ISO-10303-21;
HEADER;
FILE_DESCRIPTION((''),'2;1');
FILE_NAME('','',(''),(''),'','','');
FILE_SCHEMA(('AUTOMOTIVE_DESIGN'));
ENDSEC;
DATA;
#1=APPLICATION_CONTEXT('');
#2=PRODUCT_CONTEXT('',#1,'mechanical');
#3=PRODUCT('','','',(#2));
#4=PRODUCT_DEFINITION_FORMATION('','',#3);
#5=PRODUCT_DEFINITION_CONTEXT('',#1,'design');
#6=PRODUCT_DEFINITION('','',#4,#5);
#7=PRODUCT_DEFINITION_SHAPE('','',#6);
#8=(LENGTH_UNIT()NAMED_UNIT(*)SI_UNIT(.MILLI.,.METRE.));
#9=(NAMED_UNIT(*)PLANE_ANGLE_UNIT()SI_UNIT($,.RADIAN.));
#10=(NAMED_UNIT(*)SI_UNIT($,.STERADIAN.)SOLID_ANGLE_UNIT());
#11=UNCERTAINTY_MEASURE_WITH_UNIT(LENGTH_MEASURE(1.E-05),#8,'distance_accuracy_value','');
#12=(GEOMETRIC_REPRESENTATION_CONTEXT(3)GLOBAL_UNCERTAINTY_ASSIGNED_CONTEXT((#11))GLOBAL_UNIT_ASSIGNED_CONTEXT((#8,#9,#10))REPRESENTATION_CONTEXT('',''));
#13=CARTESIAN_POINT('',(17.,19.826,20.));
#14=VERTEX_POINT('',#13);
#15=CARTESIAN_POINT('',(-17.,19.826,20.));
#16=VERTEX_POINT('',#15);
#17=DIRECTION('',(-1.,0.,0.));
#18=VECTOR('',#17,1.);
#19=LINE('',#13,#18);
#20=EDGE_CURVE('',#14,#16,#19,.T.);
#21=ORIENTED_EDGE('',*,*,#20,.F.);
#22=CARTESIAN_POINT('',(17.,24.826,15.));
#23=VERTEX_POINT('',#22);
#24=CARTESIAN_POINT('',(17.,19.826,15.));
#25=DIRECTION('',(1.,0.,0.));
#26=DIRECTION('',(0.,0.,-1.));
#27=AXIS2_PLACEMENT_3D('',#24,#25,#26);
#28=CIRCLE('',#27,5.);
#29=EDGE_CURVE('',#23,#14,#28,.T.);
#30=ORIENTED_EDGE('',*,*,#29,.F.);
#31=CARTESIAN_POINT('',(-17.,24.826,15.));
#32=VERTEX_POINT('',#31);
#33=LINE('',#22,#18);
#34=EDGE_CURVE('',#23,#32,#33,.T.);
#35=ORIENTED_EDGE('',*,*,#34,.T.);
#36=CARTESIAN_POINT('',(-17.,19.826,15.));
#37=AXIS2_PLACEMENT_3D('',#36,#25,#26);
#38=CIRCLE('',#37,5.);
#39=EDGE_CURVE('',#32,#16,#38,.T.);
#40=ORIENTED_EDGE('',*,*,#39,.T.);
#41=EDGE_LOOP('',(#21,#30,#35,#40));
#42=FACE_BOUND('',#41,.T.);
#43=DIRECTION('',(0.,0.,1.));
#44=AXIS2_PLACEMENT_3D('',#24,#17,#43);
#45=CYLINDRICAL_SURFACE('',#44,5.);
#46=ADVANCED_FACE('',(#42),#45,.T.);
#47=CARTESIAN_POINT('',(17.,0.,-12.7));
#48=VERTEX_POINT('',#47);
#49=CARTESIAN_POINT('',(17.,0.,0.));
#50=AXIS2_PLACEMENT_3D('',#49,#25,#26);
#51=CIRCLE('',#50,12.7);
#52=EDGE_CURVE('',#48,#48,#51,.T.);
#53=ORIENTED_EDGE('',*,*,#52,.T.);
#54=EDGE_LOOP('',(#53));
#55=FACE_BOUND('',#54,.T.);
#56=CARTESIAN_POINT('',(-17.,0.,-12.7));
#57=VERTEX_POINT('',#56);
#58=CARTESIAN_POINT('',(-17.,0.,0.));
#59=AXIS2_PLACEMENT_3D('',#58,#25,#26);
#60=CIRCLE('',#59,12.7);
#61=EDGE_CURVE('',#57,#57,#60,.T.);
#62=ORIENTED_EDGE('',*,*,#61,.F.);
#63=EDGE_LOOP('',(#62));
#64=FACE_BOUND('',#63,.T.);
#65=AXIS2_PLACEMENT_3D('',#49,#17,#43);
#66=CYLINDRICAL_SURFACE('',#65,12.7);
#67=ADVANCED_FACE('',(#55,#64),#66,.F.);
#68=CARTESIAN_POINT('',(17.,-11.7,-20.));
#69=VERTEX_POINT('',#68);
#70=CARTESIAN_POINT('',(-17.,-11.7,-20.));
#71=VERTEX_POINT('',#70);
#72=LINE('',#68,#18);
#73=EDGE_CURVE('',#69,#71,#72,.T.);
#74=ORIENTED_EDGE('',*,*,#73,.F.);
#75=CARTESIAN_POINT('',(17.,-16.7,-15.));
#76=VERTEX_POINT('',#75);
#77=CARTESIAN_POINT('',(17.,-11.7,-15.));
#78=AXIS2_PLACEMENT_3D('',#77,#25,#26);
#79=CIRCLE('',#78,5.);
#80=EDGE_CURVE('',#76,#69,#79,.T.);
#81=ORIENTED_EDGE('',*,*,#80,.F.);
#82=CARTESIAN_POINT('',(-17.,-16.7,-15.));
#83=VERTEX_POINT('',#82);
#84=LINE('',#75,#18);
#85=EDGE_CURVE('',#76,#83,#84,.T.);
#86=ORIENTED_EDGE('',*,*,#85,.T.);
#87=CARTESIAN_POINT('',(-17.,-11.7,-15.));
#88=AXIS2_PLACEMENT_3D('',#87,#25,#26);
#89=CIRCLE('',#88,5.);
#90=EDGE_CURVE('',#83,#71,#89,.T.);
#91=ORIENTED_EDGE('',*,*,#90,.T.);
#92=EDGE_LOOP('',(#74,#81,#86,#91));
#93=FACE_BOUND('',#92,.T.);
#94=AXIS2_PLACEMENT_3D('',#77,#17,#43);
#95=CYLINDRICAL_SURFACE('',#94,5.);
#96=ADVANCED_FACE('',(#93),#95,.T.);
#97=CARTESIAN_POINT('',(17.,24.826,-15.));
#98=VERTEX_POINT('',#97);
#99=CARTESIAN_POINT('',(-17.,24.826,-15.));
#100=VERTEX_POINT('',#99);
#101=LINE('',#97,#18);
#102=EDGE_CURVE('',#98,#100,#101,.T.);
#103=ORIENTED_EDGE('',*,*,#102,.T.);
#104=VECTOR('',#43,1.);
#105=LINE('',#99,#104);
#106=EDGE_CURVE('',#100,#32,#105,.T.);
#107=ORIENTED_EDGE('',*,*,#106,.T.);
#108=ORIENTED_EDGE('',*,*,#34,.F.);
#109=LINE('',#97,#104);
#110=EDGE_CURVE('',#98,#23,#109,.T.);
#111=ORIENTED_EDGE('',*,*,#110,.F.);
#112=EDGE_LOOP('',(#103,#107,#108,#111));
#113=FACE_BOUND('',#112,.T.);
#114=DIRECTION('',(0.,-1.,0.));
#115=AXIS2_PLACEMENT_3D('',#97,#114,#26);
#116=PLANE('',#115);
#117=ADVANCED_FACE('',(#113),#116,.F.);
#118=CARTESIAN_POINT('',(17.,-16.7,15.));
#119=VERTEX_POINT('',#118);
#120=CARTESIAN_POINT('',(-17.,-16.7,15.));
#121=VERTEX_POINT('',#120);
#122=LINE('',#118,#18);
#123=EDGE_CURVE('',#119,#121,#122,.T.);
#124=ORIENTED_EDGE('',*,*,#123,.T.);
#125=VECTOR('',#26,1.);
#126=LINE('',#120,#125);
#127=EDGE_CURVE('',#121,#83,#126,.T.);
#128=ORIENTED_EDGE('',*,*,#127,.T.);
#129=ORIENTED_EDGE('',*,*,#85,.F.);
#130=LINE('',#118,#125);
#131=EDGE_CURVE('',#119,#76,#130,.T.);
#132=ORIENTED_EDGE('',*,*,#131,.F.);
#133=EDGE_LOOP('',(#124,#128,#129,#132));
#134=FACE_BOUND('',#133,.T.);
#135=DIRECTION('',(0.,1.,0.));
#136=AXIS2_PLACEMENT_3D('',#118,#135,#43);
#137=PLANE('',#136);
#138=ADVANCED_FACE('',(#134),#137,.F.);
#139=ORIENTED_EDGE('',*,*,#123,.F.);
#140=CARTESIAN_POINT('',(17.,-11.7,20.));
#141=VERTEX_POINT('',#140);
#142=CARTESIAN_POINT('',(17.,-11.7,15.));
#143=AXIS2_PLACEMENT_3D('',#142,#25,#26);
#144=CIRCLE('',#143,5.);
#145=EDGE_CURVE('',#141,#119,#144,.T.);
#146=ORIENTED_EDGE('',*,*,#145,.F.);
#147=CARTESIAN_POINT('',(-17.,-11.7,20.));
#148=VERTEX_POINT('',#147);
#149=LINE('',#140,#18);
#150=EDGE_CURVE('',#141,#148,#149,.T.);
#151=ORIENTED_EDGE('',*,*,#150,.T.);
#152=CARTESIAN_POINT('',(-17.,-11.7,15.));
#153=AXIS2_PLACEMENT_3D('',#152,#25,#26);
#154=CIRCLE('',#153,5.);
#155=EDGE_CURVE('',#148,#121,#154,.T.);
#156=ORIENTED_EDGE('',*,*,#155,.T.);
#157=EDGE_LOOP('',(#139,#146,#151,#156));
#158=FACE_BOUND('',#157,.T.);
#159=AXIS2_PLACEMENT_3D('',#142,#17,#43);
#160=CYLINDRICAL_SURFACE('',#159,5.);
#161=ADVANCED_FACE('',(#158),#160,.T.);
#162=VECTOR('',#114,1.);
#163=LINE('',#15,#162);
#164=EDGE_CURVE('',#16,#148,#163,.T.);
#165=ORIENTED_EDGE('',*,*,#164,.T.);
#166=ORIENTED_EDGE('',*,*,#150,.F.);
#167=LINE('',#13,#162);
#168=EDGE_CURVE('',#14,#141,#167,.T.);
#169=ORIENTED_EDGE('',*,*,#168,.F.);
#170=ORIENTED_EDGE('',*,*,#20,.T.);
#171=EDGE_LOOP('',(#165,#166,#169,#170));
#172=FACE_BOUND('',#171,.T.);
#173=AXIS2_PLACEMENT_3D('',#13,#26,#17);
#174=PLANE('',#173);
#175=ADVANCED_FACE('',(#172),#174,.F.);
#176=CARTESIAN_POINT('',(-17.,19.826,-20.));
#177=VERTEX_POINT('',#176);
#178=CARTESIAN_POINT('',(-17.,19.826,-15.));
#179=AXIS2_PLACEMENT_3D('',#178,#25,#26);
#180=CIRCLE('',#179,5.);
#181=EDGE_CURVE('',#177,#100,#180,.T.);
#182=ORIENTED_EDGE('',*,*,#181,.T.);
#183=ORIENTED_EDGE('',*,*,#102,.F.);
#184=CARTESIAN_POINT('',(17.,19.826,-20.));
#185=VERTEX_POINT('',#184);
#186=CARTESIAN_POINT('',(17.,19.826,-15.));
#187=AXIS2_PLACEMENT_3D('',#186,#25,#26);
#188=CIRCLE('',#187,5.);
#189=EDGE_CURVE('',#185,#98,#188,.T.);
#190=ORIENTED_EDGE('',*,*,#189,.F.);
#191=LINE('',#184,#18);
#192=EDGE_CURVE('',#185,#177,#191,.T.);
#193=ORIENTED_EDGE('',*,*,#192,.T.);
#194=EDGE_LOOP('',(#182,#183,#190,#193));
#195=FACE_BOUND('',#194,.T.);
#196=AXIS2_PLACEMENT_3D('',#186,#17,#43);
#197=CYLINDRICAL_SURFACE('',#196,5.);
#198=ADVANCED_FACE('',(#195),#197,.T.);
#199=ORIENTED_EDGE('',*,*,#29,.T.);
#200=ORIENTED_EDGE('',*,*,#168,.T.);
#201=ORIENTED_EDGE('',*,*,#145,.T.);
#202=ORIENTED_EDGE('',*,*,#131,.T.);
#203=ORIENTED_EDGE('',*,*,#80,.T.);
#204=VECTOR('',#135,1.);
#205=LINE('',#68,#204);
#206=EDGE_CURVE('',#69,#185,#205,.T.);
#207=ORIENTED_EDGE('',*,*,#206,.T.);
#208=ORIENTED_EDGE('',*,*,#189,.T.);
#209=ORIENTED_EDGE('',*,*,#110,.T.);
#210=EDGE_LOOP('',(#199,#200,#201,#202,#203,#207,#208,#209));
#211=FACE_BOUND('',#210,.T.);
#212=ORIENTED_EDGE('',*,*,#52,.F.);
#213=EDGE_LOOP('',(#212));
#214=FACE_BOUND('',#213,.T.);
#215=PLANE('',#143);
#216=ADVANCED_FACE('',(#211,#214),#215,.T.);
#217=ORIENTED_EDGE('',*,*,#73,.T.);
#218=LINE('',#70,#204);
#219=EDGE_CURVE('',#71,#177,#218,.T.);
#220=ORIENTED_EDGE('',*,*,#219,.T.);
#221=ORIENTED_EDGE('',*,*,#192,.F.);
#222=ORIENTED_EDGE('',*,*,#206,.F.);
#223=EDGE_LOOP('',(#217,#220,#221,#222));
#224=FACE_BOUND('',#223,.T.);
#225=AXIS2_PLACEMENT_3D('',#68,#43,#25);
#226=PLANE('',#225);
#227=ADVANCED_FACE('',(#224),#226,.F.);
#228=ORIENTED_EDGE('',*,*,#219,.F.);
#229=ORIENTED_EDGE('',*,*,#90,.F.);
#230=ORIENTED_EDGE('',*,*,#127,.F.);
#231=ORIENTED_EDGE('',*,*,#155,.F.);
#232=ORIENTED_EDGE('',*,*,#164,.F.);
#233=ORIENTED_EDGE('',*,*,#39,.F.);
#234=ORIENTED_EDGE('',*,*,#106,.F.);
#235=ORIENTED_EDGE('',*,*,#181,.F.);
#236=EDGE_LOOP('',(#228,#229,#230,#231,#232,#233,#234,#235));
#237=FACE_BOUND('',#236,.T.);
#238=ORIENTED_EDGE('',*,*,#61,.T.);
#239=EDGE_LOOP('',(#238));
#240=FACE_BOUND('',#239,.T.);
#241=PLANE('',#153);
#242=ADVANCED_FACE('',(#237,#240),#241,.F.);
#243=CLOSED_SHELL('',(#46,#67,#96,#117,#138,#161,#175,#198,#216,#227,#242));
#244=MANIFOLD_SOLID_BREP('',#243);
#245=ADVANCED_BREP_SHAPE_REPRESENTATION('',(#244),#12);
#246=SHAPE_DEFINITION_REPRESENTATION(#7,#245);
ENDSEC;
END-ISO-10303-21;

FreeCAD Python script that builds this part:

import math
import FreeCAD as App
import Part
import Sketcher
Q = App.Units.Quantity

doc = App.newDocument("Part")
body = doc.addObject("PartDesign::Body", "Body")

# Sketch on YZ plane
sketch1 = body.newObject("Sketcher::SketchObject", "Sketch")
sketch1.AttachmentSupport = (doc.getObject("YZ_Plane"), [""])
sketch1.MapMode = "FlatFace"
sketch1.addGeometry(Part.LineSegment(App.Vector(-16.7, 15, 0), App.Vector(-16.7, -15, 0)), False)
sketch1.addGeometry(Part.ArcOfCircle(Part.Circle(App.Vector(-11.7, -15, 0), App.Vector(0, 0, 1), 5), math.radians(180), math.radians(270)), False)
sketch1.addGeometry(Part.LineSegment(App.Vector(-11.7, -20, 0), App.Vector(19.826, -20, 0)), False)
sketch1.addGeometry(Part.ArcOfCircle(Part.Circle(App.Vector(19.826, -15, 0), App.Vector(0, 0, 1), 5), math.radians(-90), math.radians(0)), False)
sketch1.addGeometry(Part.LineSegment(App.Vector(24.826, -15, 0), App.Vector(24.826, 15, 0)), False)
sketch1.addGeometry(Part.ArcOfCircle(Part.Circle(App.Vector(19.826, 15, 0), App.Vector(0, 0, 1), 5), math.radians(0), math.radians(90)), False)
sketch1.addGeometry(Part.LineSegment(App.Vector(19.826, 20, 0), App.Vector(-11.7, 20, 0)), False)
sketch1.addGeometry(Part.ArcOfCircle(Part.Circle(App.Vector(-11.7, 15, 0), App.Vector(0, 0, 1), 5), math.radians(90), math.radians(180)), False)
sketch1.addGeometry(Part.Circle(App.Vector(0, 0, 0), App.Vector(0, 0, 1), 12.7), False)
sketch1.addConstraint(Sketcher.Constraint("Tangent", 0, 2, 1, 1))
sketch1.addConstraint(Sketcher.Constraint("Tangent", 1, 2, 2, 1))
sketch1.addConstraint(Sketcher.Constraint("Tangent", 2, 2, 3, 1))
sketch1.addConstraint(Sketcher.Constraint("Tangent", 3, 2, 4, 1))
sketch1.addConstraint(Sketcher.Constraint("Tangent", 4, 2, 5, 1))
sketch1.addConstraint(Sketcher.Constraint("Tangent", 5, 2, 6, 1))
sketch1.addConstraint(Sketcher.Constraint("Tangent", 6, 2, 7, 1))
sketch1.addConstraint(Sketcher.Constraint("Tangent", 7, 2, 0, 1))
sketch1.addConstraint(Sketcher.Constraint("Vertical", 0))
sketch1.addConstraint(Sketcher.Constraint("Horizontal", 2))
sketch1.addConstraint(Sketcher.Constraint("Vertical", 4))
sketch1.addConstraint(Sketcher.Constraint("Horizontal", 6))
sketch1.addConstraint(Sketcher.Constraint("Coincident", 8, 3, -1, 1))
sketch1.addConstraint(Sketcher.Constraint("Equal", 1, 3))
sketch1.addConstraint(Sketcher.Constraint("Equal", 3, 5))
sketch1.addConstraint(Sketcher.Constraint("Equal", 5, 7))
sketch1.addConstraint(Sketcher.Constraint("Radius", 1, Q("5 mm")))
sketch1.addConstraint(Sketcher.Constraint("Diameter", 8, Q("25.4 mm")))
sketch1.addConstraint(Sketcher.Constraint("DistanceY", 0, 2, 0, 1, Q("30 mm")))
sketch1.addConstraint(Sketcher.Constraint("DistanceY", 1, 3, -1, 1, Q("15 mm")))
sketch1.addConstraint(Sketcher.Constraint("DistanceX", 1, 3, -1, 1, Q("11.7 mm")))
sketch1.addConstraint(Sketcher.Constraint("DistanceX", 2, 1, 2, 2, Q("31.526 mm")))
pad1 = body.newObject("PartDesign::Pad", "Pad")
pad1.Profile = sketch1
pad1.Length = 34
pad1.Midplane = True

doc.recompute()
